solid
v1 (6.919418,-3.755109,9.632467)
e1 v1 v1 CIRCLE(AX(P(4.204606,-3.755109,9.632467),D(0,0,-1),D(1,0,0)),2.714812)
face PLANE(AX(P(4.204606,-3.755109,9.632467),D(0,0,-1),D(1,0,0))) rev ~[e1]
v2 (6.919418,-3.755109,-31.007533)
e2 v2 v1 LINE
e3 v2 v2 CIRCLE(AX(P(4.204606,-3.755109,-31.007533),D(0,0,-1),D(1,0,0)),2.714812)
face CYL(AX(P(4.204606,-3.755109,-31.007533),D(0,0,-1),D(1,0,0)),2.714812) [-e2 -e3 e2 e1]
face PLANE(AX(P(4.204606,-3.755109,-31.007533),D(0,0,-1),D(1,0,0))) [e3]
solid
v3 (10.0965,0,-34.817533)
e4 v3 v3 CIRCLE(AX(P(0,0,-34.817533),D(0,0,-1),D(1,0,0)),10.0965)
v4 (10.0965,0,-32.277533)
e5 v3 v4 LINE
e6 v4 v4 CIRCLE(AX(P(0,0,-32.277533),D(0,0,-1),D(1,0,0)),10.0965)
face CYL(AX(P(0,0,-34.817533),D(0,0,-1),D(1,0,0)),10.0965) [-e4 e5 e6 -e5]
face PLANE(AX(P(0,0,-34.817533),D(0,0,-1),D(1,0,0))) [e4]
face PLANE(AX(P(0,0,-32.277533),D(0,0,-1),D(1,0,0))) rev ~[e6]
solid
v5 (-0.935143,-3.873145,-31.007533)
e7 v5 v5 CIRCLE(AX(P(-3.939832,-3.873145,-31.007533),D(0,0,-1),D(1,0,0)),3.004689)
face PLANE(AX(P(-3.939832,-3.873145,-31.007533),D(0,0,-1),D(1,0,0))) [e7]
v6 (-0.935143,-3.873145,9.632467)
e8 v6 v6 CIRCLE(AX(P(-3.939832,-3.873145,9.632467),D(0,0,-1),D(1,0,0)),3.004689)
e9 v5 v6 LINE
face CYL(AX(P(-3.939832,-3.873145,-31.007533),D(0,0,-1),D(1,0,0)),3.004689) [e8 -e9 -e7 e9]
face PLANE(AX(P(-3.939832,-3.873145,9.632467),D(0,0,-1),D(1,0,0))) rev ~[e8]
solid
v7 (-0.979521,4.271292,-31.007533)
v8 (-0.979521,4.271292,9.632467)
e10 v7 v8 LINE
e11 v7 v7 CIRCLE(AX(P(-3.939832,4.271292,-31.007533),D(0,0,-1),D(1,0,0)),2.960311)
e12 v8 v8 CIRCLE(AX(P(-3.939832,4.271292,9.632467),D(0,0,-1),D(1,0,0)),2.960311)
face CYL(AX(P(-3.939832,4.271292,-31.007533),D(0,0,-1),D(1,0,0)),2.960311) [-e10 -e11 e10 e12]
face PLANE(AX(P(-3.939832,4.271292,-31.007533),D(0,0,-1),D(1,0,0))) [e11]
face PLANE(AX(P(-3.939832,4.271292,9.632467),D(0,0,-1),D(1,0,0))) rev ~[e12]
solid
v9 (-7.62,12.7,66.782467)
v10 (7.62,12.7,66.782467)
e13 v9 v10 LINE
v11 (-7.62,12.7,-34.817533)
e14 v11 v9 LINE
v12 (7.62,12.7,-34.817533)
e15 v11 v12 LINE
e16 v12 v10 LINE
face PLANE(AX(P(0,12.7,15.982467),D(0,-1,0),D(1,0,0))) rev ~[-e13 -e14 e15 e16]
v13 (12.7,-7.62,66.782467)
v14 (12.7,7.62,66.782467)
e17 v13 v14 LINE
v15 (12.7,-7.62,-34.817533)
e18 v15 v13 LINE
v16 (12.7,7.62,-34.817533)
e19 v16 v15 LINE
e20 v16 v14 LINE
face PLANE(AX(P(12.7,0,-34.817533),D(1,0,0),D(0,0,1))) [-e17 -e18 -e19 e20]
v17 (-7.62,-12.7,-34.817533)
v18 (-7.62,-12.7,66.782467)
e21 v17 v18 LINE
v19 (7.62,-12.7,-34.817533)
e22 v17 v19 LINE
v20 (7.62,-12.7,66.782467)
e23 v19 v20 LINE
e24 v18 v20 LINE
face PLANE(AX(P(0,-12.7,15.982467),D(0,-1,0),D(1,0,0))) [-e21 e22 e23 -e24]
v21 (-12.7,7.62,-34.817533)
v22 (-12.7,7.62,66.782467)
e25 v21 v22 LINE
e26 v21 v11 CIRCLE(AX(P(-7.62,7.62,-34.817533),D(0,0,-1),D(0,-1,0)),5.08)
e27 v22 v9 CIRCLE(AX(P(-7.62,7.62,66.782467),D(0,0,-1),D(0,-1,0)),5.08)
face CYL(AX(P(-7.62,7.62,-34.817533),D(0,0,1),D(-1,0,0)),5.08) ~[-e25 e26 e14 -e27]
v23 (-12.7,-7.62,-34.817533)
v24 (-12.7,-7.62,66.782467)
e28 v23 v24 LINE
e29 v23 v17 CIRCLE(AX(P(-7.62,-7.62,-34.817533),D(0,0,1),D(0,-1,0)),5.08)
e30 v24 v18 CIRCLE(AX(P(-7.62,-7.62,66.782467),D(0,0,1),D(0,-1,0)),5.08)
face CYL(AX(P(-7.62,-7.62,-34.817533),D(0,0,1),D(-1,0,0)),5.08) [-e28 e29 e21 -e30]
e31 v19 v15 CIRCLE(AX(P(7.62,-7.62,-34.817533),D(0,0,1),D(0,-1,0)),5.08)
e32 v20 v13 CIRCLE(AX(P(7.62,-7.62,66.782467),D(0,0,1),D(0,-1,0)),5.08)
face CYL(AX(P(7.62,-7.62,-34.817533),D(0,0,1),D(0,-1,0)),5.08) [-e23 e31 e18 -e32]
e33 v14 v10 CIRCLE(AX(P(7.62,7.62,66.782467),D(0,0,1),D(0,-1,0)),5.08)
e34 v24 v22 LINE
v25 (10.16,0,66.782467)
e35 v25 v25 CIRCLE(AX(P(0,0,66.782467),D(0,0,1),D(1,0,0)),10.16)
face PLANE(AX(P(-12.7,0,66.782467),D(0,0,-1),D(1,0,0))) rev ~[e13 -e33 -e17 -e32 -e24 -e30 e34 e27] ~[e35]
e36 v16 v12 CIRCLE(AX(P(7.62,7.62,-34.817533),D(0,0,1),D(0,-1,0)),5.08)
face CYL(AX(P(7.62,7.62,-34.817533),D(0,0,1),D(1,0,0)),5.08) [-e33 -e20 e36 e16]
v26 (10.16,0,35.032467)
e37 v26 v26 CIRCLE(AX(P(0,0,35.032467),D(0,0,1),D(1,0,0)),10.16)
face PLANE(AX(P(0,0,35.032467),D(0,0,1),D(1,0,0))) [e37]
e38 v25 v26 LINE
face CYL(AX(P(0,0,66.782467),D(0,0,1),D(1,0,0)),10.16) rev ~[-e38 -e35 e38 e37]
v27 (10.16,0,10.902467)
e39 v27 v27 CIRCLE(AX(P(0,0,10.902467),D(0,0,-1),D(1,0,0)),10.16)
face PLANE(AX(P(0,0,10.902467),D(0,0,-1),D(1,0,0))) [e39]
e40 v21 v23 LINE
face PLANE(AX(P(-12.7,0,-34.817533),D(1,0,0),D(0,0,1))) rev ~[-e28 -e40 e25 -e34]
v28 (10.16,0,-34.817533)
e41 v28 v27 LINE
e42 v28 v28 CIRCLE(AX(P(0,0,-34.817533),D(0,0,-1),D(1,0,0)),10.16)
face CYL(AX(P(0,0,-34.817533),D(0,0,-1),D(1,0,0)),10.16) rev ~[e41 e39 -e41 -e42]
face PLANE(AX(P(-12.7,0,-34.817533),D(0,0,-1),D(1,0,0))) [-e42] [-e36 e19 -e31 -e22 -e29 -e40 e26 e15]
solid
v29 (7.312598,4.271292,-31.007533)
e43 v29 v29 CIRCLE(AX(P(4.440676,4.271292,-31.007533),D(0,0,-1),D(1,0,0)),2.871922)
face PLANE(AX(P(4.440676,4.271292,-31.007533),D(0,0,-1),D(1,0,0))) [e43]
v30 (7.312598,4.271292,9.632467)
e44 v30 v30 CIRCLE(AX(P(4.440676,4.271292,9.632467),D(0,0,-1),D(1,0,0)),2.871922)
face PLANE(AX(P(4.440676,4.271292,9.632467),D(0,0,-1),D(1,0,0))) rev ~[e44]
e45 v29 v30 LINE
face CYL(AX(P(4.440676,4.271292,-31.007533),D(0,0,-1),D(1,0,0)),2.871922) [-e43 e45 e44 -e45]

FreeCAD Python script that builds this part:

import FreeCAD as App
import Part
import Sketcher

V = App.Vector
Q = App.Units.Quantity


def edges_at(feature, points):
    """Names of the edges that pass closest to the given points."""
    edges = feature.Shape.Edges
    near = lambda p: min(range(len(edges)), key=lambda i: edges[i].distToShape(Part.Vertex(*p))[0])
    return sorted({f"Edge{near(p) + 1}" for p in points})


def add_polygon(sketch, points):
    """Adds a closed chain of lines whose ends are joined by coincident constraints."""
    first, n = sketch.GeometryCount, len(points)
    for a, b in zip(points, points[1:] + points[:1]):
        sketch.addGeometry(Part.LineSegment(App.Vector(*a, 0), App.Vector(*b, 0)), False)
    for i in range(n):
        sketch.addConstraint(Sketcher.Constraint("Coincident", first + i, 2, first + (i + 1) % n, 1))

doc = App.newDocument("Part")
body = doc.addObject("PartDesign::Body", "Body")

# Sketch on XZ plane
sketch1 = body.newObject("Sketcher::SketchObject", "Sketch")
sketch1.AttachmentSupport = (doc.getObject("XZ_Plane"), [""])
sketch1.MapMode = "FlatFace"
add_polygon(sketch1, [(-13, 67), (-13, -35), (13, -35), (13, 67)])  # lines 0-3
sketch1.addConstraint(Sketcher.Constraint("Vertical", 0))
sketch1.addConstraint(Sketcher.Constraint("Horizontal", 1))
sketch1.addConstraint(Sketcher.Constraint("Vertical", 2))
sketch1.addConstraint(Sketcher.Constraint("Horizontal", 3))
sketch1.addConstraint(Sketcher.Constraint("DistanceX", 1, 1, 1, 2, Q("1 in")))
sketch1.addConstraint(Sketcher.Constraint("DistanceY", 0, 2, 0, 1, Q("4 in")))
sketch1.addConstraint(Sketcher.Constraint("DistanceX", 0, 2, -1, 1, Q("0.5 in")))
sketch1.addConstraint(Sketcher.Constraint("DistanceY", 0, 2, -1, 1, Q("34.817533 mm")))
pad1 = body.newObject("PartDesign::Pad", "Pad")
pad1.Profile = sketch1
pad1.Length = Q("1 in")
pad1.Midplane = True
doc.recompute()

fillet = body.newObject("PartDesign::Fillet", "Fillet")
fillet.Base = (pad1, edges_at(pad1, [
    (-12.7, 12.7, 15.982),
    (-12.7, -12.7, 15.982),
    (12.7, 12.7, 15.982),
    (12.7, -12.7, 15.982),
]))
fillet.Radius = Q("0.2 in")

# Sketch on XY plane
sketch2 = body.newObject("Sketcher::SketchObject", "Sketch001")
sketch2.AttachmentSupport = (doc.getObject("XY_Plane"), [""])
sketch2.MapMode = "FlatFace"
sketch2.AttachmentOffset = App.Placement(V(0, 0, 66.782467), App.Rotation())
sketch2.addGeometry(Part.Circle(V(0, 0, 0), V(0, 0, 1), 10), False)
sketch2.addConstraint(Sketcher.Constraint("Coincident", 0, 3, -1, 1))
sketch2.addConstraint(Sketcher.Constraint("Diameter", 0, Q("0.8 in")))
pocket1 = body.newObject("PartDesign::Pocket", "Pocket")
pocket1.Profile = sketch2
pocket1.Length = Q("1.25 in")

# Sketch on XY plane
sketch3 = body.newObject("Sketcher::SketchObject", "Sketch002")
sketch3.AttachmentSupport = (doc.getObject("XY_Plane"), [""])
sketch3.MapMode = "FlatFace"
sketch3.AttachmentOffset = App.Placement(V(0, 0, -34.817533), App.Rotation())
sketch3.addGeometry(Part.Circle(V(0, 0, 0), V(0, 0, 1), 10), False)
sketch3.addConstraint(Sketcher.Constraint("Coincident", 0, 3, -1, 1))
sketch3.addConstraint(Sketcher.Constraint("Diameter", 0, Q("0.8 in")))
pocket2 = body.newObject("PartDesign::Pocket", "Pocket001")
pocket2.Profile = sketch3
pocket2.Length = Q("1.8 in")
pocket2.Reversed = True
body2 = doc.addObject("PartDesign::Body", "Body001")

# Sketch on XY plane
sketch4 = body2.newObject("Sketcher::SketchObject", "Sketch003")
sketch4.AttachmentSupport = (doc.getObject("XY_Plane001"), [""])
sketch4.MapMode = "FlatFace"
sketch4.AttachmentOffset = App.Placement(V(0, 0, -31.007533), App.Rotation())
sketch4.addGeometry(Part.Circle(V(-3.9, -3.9, 0), V(0, 0, 1), 3), False)
sketch4.addConstraint(Sketcher.Constraint("Diameter", 0, Q("6.009377 mm")))
sketch4.addConstraint(Sketcher.Constraint("DistanceX", 0, 3, -1, 1, Q("3.939832 mm")))
sketch4.addConstraint(Sketcher.Constraint("DistanceY", 0, 3, -1, 1, Q("3.873145 mm")))
pad2 = body2.newObject("PartDesign::Pad", "Pad001")
pad2.Profile = sketch4
pad2.Length = Q("1.6 in")
body3 = doc.addObject("PartDesign::Body", "Body002")

# Sketch on XY plane
sketch5 = body3.newObject("Sketcher::SketchObject", "Sketch004")
sketch5.AttachmentSupport = (doc.getObject("XY_Plane002"), [""])
sketch5.MapMode = "FlatFace"
sketch5.AttachmentOffset = App.Placement(V(0, 0, -31.007533), App.Rotation())
sketch5.addGeometry(Part.Circle(V(4.2, -3.8, 0), V(0, 0, 1), 2.7), False)
sketch5.addConstraint(Sketcher.Constraint("Diameter", 0, Q("5.429625 mm")))
sketch5.addConstraint(Sketcher.Constraint("DistanceY", 0, 3, -1, 1, Q("3.755109 mm")))
sketch5.addConstraint(Sketcher.Constraint("DistanceX", -1, 1, 0, 3, Q("4.204606 mm")))
pad3 = body3.newObject("PartDesign::Pad", "Pad002")
pad3.Profile = sketch5
pad3.Length = Q("1.6 in")
body4 = doc.addObject("PartDesign::Body", "Body003")

# Sketch on XY plane
sketch6 = body4.newObject("Sketcher::SketchObject", "Sketch005")
sketch6.AttachmentSupport = (doc.getObject("XY_Plane003"), [""])
sketch6.MapMode = "FlatFace"
sketch6.AttachmentOffset = App.Placement(V(0, 0, -31.007533), App.Rotation())
sketch6.addGeometry(Part.Circle(V(-3.9, 4.3, 0), V(0, 0, 1), 3), False)
sketch6.addConstraint(Sketcher.Constraint("Diameter", 0, Q("5.920622 mm")))
sketch6.addConstraint(Sketcher.Constraint("DistanceY", -1, 1, 0, 3, Q("4.271292 mm")))
sketch6.addConstraint(Sketcher.Constraint("DistanceX", 0, 3, -1, 1, Q("3.939832 mm")))
pad4 = body4.newObject("PartDesign::Pad", "Pad003")
pad4.Profile = sketch6
pad4.Length = Q("1.6 in")
body5 = doc.addObject("PartDesign::Body", "Body004")

# Sketch on XY plane
sketch7 = body5.newObject("Sketcher::SketchObject", "Sketch006")
sketch7.AttachmentSupport = (doc.getObject("XY_Plane004"), [""])
sketch7.MapMode = "FlatFace"
sketch7.AttachmentOffset = App.Placement(V(0, 0, -31.007533), App.Rotation())
sketch7.addGeometry(Part.Circle(V(4.4, 4.3, 0), V(0, 0, 1), 2.9), False)
sketch7.addConstraint(Sketcher.Constraint("Diameter", 0, Q("5.743845 mm")))
sketch7.addConstraint(Sketcher.Constraint("DistanceY", -1, 1, 0, 3, Q("4.271292 mm")))
sketch7.addConstraint(Sketcher.Constraint("DistanceX", -1, 1, 0, 3, Q("4.440676 mm")))
pad5 = body5.newObject("PartDesign::Pad", "Pad004")
pad5.Profile = sketch7
pad5.Length = Q("1.6 in")
body6 = doc.addObject("PartDesign::Body", "Body005")

# Sketch on XY plane
sketch8 = body6.newObject("Sketcher::SketchObject", "Sketch007")
sketch8.AttachmentSupport = (doc.getObject("XY_Plane005"), [""])
sketch8.MapMode = "FlatFace"
sketch8.AttachmentOffset = App.Placement(V(0, 0, -34.817533), App.Rotation())
sketch8.addGeometry(Part.Circle(V(0, 0, 0), V(0, 0, 1), 10), False)
sketch8.addConstraint(Sketcher.Constraint("Coincident", 0, 3, -1, 1))
sketch8.addConstraint(Sketcher.Constraint("Diameter", 0, Q("0.795 in")))
pad6 = body6.newObject("PartDesign::Pad", "Pad005")
pad6.Profile = sketch8
pad6.Length = Q("0.1 in")

doc.recompute()
